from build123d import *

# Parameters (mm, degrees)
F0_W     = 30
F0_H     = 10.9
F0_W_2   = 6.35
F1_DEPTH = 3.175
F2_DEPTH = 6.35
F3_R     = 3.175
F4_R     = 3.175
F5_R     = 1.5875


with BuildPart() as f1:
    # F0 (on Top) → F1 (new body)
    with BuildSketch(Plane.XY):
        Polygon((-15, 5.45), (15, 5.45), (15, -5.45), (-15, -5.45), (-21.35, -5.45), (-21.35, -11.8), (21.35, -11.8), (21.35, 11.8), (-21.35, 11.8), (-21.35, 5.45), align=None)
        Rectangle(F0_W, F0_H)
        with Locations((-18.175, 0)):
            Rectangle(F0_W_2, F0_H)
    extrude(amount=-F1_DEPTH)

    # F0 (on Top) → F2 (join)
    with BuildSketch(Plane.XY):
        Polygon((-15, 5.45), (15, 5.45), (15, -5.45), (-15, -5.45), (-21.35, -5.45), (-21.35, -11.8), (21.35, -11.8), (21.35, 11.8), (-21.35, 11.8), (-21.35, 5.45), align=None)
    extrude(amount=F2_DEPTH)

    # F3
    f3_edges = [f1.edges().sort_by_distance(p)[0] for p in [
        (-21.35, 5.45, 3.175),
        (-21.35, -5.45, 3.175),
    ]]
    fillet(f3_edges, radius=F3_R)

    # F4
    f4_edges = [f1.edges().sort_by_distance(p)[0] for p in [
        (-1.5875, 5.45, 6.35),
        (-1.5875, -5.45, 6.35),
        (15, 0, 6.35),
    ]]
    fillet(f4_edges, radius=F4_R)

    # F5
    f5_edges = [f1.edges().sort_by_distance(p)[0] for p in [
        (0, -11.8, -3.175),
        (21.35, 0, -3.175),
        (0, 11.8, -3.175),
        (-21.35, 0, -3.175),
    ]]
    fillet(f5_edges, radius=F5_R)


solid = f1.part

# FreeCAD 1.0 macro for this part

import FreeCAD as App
import Part
import Sketcher
from FreeCAD import Vector


def edges_at(feature, points):
    """Names of the edges that pass closest to the given points."""
    edges = feature.Shape.Edges
    near = lambda p: min(range(len(edges)), key=lambda i: edges[i].distToShape(Part.Vertex(*p))[0])
    return sorted({f"Edge{near(p) + 1}" for p in points})

doc = App.newDocument("Part")
body = doc.addObject("PartDesign::Body", "Body")

# Sketch on XY plane
sketch1 = body.newObject("Sketcher::SketchObject", "Sketch")
sketch1.AttachmentSupport = (doc.getObject("XY_Plane"), [""])
sketch1.MapMode = "FlatFace"
sketch1.addGeometry([
    Part.LineSegment(Vector(-21.35, -11.8, 0), Vector(21.35, -11.8, 0)),
    Part.LineSegment(Vector(21.35, -11.8, 0), Vector(21.35, 11.8, 0)),
    Part.LineSegment(Vector(21.35, 11.8, 0), Vector(-21.35, 11.8, 0)),
    Part.LineSegment(Vector(-21.35, 11.8, 0), Vector(-21.35, -11.8, 0)),
], False)
sketch1.addConstraint([
    Sketcher.Constraint("Coincident", 0, 2, 1, 1),
    Sketcher.Constraint("Coincident", 1, 2, 2, 1),
    Sketcher.Constraint("Coincident", 2, 2, 3, 1),
    Sketcher.Constraint("Coincident", 3, 2, 0, 1),
    Sketcher.Constraint("Horizontal", 0),
    Sketcher.Constraint("Vertical", 1),
    Sketcher.Constraint("Horizontal", 2),
    Sketcher.Constraint("Vertical", 3),
    Sketcher.Constraint("Symmetric", 0, 2, 2, 2, -1, 1),
    Sketcher.Constraint("DistanceX", 0, 1, 0, 2, 42.7),
    Sketcher.Constraint("DistanceY", 1, 1, 1, 2, 23.6),
])
pad1 = body.newObject("PartDesign::Pad", "Pad")
pad1.Profile = sketch1
pad1.Length = 3.175
pad1.Reversed = True

# Sketch on XY plane
sketch2 = body.newObject("Sketcher::SketchObject", "Sketch001")
sketch2.AttachmentSupport = (doc.getObject("XY_Plane"), [""])
sketch2.MapMode = "FlatFace"
sketch2.addGeometry([
    Part.LineSegment(Vector(15, 5.45, 0), Vector(15, -5.45, 0)),  # 0
    Part.LineSegment(Vector(15, -5.45, 0), Vector(-21.35, -5.45, 0)),  # 1
    Part.LineSegment(Vector(-21.35, -5.45, 0), Vector(-21.35, -11.8, 0)),  # 2
    Part.LineSegment(Vector(-21.35, -11.8, 0), Vector(21.35, -11.8, 0)),  # 3
    Part.LineSegment(Vector(21.35, -11.8, 0), Vector(21.35, 11.8, 0)),  # 4
    Part.LineSegment(Vector(21.35, 11.8, 0), Vector(-21.35, 11.8, 0)),  # 5
    Part.LineSegment(Vector(-21.35, 11.8, 0), Vector(-21.35, 5.45, 0)),  # 6
    Part.LineSegment(Vector(-21.35, 5.45, 0), Vector(15, 5.45, 0)),  # 7
], False)
sketch2.addConstraint([
    Sketcher.Constraint("Coincident", 0, 2, 1, 1),
    Sketcher.Constraint("Coincident", 1, 2, 2, 1),
    Sketcher.Constraint("Coincident", 2, 2, 3, 1),
    Sketcher.Constraint("Coincident", 3, 2, 4, 1),
    Sketcher.Constraint("Coincident", 4, 2, 5, 1),
    Sketcher.Constraint("Coincident", 5, 2, 6, 1),
    Sketcher.Constraint("Coincident", 6, 2, 7, 1),
    Sketcher.Constraint("Coincident", 7, 2, 0, 1),
    Sketcher.Constraint("Vertical", 0),
    Sketcher.Constraint("Horizontal", 1),
    Sketcher.Constraint("Vertical", 2),
    Sketcher.Constraint("Horizontal", 3),
    Sketcher.Constraint("Vertical", 4),
    Sketcher.Constraint("Horizontal", 5),
    Sketcher.Constraint("Vertical", 6),
    Sketcher.Constraint("Horizontal", 7),
    Sketcher.Constraint("Symmetric", 2, 2, 4, 2, -1, 1),
    Sketcher.Constraint("Symmetric", 1, 2, 6, 2, -1),
    Sketcher.Constraint("DistanceX", 3, 1, 3, 2, 42.7),
    Sketcher.Constraint("DistanceY", 0, 2, 0, 1, 10.9),
    Sketcher.Constraint("DistanceY", 4, 1, 4, 2, 23.6),
    Sketcher.Constraint("DistanceX", -1, 1, 0, 2, 15.0),
])
pad2 = body.newObject("PartDesign::Pad", "Pad001")
pad2.Profile = sketch2
pad2.Length = 6.35
doc.recompute()

fillet = body.newObject("PartDesign::Fillet", "Fillet")
fillet.Base = (pad2, edges_at(pad2, [(-21.35, 5.45, 3.175), (-21.35, -5.45, 3.175)]))
fillet.Radius = 3.175
doc.recompute()

fillet2 = body.newObject("PartDesign::Fillet", "Fillet001")
fillet2.Base = (fillet, edges_at(fillet, [(-1.587, 5.45, 6.35), (-1.587, -5.45, 6.35), (15, 0, 6.35)]))
fillet2.Radius = 3.175
doc.recompute()

fillet3 = body.newObject("PartDesign::Fillet", "Fillet002")
fillet3.Base = (fillet2, edges_at(fillet2, [
    (0, -11.8, -3.175),
    (21.35, 0, -3.175),
    (0, 11.8, -3.175),
    (-21.35, 0, -3.175),
]))
fillet3.Radius = 1.5875

doc.recompute()
